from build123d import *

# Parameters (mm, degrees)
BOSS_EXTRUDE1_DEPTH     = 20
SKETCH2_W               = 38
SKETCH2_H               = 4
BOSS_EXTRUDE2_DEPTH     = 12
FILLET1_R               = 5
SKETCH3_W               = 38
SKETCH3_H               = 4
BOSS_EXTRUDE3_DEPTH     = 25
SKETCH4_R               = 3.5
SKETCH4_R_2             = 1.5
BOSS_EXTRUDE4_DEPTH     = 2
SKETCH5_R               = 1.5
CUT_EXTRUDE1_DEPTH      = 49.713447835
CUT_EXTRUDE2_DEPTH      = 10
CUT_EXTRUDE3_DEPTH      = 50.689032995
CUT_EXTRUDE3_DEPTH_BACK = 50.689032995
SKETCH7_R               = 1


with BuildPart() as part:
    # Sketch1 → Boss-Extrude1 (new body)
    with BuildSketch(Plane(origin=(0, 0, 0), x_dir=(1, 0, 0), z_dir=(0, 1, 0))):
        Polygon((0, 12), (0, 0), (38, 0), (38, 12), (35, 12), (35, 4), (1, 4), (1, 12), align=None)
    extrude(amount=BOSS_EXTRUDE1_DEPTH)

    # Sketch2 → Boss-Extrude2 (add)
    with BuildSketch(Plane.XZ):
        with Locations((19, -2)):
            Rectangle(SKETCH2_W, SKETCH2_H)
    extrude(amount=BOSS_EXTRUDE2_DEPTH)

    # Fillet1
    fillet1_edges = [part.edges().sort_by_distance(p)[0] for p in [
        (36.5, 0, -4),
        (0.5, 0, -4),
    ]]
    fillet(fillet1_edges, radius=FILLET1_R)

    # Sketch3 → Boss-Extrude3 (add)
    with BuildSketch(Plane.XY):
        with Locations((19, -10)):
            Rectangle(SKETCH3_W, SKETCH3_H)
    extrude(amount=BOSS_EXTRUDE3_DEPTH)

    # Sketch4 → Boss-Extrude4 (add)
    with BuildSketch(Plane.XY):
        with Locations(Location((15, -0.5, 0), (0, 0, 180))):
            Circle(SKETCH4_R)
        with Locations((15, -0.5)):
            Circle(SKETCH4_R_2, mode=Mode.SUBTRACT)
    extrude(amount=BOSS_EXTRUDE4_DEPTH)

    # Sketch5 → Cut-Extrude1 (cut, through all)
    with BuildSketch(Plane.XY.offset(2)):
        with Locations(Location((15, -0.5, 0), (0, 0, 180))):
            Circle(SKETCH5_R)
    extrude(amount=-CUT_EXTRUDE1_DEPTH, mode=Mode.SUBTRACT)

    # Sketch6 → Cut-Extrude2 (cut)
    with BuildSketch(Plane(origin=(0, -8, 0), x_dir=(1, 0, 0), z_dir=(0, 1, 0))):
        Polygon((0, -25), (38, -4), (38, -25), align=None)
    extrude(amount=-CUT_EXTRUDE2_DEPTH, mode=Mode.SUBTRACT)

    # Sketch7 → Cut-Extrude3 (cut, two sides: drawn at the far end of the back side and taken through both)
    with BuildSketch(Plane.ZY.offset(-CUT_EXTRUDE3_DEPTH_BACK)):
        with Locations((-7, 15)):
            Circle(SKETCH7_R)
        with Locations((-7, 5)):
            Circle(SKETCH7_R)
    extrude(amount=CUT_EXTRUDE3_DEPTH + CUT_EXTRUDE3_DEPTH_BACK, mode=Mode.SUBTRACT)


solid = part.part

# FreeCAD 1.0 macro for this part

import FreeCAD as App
import Part
import Sketcher
from FreeCAD import Vector


def edges_at(feature, points):
    """Names of the edges that pass closest to the given points."""
    edges = feature.Shape.Edges
    near = lambda p: min(range(len(edges)), key=lambda i: edges[i].distToShape(Part.Vertex(*p))[0])
    return sorted({f"Edge{near(p) + 1}" for p in points})


def add_polygon(sketch, points):
    """Adds a closed chain of lines whose ends are joined by coincident constraints."""
    first, n = sketch.GeometryCount, len(points)
    for a, b in zip(points, points[1:] + points[:1]):
        sketch.addGeometry(Part.LineSegment(App.Vector(*a, 0), App.Vector(*b, 0)), False)
    for i in range(n):
        sketch.addConstraint(Sketcher.Constraint("Coincident", first + i, 2, first + (i + 1) % n, 1))

doc = App.newDocument("Part")
body = doc.addObject("PartDesign::Body", "Body")

sketch1 = body.newObject("Sketcher::SketchObject", "Sketch")
sketch1.AttachmentSupport = (doc.getObject("XZ_Plane"), [""])
sketch1.MapMode = "FlatFace"
add_polygon(sketch1, [(0, -12), (0, 0), (38, 0), (38, -12), (35, -12), (35, -4), (1, -4), (1, -12)])
sketch1.addConstraint(Sketcher.Constraint("Vertical", 0))
sketch1.addConstraint(Sketcher.Constraint("Horizontal", 1))
sketch1.addConstraint(Sketcher.Constraint("Vertical", 2))
sketch1.addConstraint(Sketcher.Constraint("Horizontal", 3))
sketch1.addConstraint(Sketcher.Constraint("Vertical", 4))
sketch1.addConstraint(Sketcher.Constraint("Horizontal", 5))
sketch1.addConstraint(Sketcher.Constraint("Vertical", 6))
sketch1.addConstraint(Sketcher.Constraint("Horizontal", 7))
sketch1.addConstraint(Sketcher.Constraint("Coincident", 0, 2, -1, 1))
sketch1.addConstraint(Sketcher.Constraint("Horizontal", 3, 2, 6, 2))
sketch1.addConstraint(Sketcher.Constraint("DistanceX", 1, 1, 1, 2, 38.0))
sketch1.addConstraint(Sketcher.Constraint("DistanceX", 3, 2, 3, 1, 3.0))
sketch1.addConstraint(Sketcher.Constraint("DistanceX", 5, 2, 5, 1, 34.0))
sketch1.addConstraint(Sketcher.Constraint("DistanceY", 0, 1, 0, 2, 12.0))
sketch1.addConstraint(Sketcher.Constraint("DistanceY", 4, 1, 4, 2, 8.0))
pad1 = body.newObject("PartDesign::Pad", "Pad")
pad1.Profile = sketch1
pad1.Length = 20
pad1.Reversed = True

sketch2 = body.newObject("Sketcher::SketchObject", "Sketch001")
sketch2.AttachmentSupport = (doc.getObject("XZ_Plane"), [""])
sketch2.MapMode = "FlatFace"
add_polygon(sketch2, [(0, 0), (0, -4), (38, -4), (38, 0)])
sketch2.addConstraint(Sketcher.Constraint("Vertical", 0))
sketch2.addConstraint(Sketcher.Constraint("Horizontal", 1))
sketch2.addConstraint(Sketcher.Constraint("Vertical", 2))
sketch2.addConstraint(Sketcher.Constraint("Horizontal", 3))
sketch2.addConstraint(Sketcher.Constraint("Coincident", 3, 2, -1, 1))
sketch2.addConstraint(Sketcher.Constraint("DistanceX", 1, 1, 1, 2, 38.0))
sketch2.addConstraint(Sketcher.Constraint("DistanceY", 0, 2, 0, 1, 4.0))
pad2 = body.newObject("PartDesign::Pad", "Pad001")
pad2.Profile = sketch2
pad2.Length = 12
doc.recompute()

fillet = body.newObject("PartDesign::Fillet", "Fillet")
fillet.Base = (pad2, edges_at(pad2, [(36.5, 0, -4), (0.5, 0, -4)]))
fillet.Radius = 5

sketch3 = body.newObject("Sketcher::SketchObject", "Sketch002")
sketch3.AttachmentSupport = (doc.getObject("XY_Plane"), [""])
sketch3.MapMode = "FlatFace"
add_polygon(sketch3, [(0, -8), (0, -12), (38, -12), (38, -8)])
sketch3.addConstraint(Sketcher.Constraint("Vertical", 0))
sketch3.addConstraint(Sketcher.Constraint("Horizontal", 1))
sketch3.addConstraint(Sketcher.Constraint("Vertical", 2))
sketch3.addConstraint(Sketcher.Constraint("Horizontal", 3))
sketch3.addConstraint(Sketcher.Constraint("PointOnObject", 0, 2, -2))
sketch3.addConstraint(Sketcher.Constraint("DistanceX", 1, 1, 1, 2, 38.0))
sketch3.addConstraint(Sketcher.Constraint("DistanceY", 0, 2, 0, 1, 4.0))
sketch3.addConstraint(Sketcher.Constraint("DistanceY", 0, 2, -1, 1, 12.0))
pad3 = body.newObject("PartDesign::Pad", "Pad002")
pad3.Profile = sketch3
pad3.Length = 25

sketch4 = body.newObject("Sketcher::SketchObject", "Sketch003")
sketch4.AttachmentSupport = (doc.getObject("XY_Plane"), [""])
sketch4.MapMode = "FlatFace"
sketch4.addGeometry(Part.Circle(Vector(15, -0.5, 0), Vector(0, 0, 1), 3.5), False)
sketch4.addGeometry(Part.Circle(Vector(15, -0.5, 0), Vector(0, 0, 1), 1.5), False)
sketch4.addConstraint(Sketcher.Constraint("Coincident", 1, 3, 0, 3))
sketch4.addConstraint(Sketcher.Constraint("Diameter", 0, 7.0))
sketch4.addConstraint(Sketcher.Constraint("Diameter", 1, 3.0))
sketch4.addConstraint(Sketcher.Constraint("DistanceX", -1, 1, 0, 3, 15.0))
sketch4.addConstraint(Sketcher.Constraint("DistanceY", 0, 3, -1, 1, 0.5))
pad4 = body.newObject("PartDesign::Pad", "Pad003")
pad4.Profile = sketch4
pad4.Length = 2

sketch5 = body.newObject("Sketcher::SketchObject", "Sketch004")
sketch5.AttachmentSupport = (doc.getObject("XY_Plane"), [""])
sketch5.MapMode = "FlatFace"
sketch5.AttachmentOffset = App.Placement(Vector(0, 0, 2), App.Rotation())
sketch5.addGeometry(Part.Circle(Vector(15, -0.5, 0), Vector(0, 0, 1), 1.5), False)
sketch5.addConstraint(Sketcher.Constraint("Diameter", 0, 3.0))
sketch5.addConstraint(Sketcher.Constraint("DistanceX", -1, 1, 0, 3, 15.0))
sketch5.addConstraint(Sketcher.Constraint("DistanceY", 0, 3, -1, 1, 0.5))
pocket1 = body.newObject("PartDesign::Pocket", "Pocket")
pocket1.Profile = sketch5
pocket1.Type = "ThroughAll"

sketch6 = body.newObject("Sketcher::SketchObject", "Sketch005")
sketch6.AttachmentSupport = (doc.getObject("XZ_Plane"), [""])
sketch6.MapMode = "FlatFace"
sketch6.AttachmentOffset = App.Placement(Vector(0, 0, 8), App.Rotation())
add_polygon(sketch6, [(38, 4), (0, 25), (38, 25)])
sketch6.addConstraint(Sketcher.Constraint("Horizontal", 1))
sketch6.addConstraint(Sketcher.Constraint("Vertical", 2))
sketch6.addConstraint(Sketcher.Constraint("PointOnObject", 0, 2, -2))
sketch6.addConstraint(Sketcher.Constraint("DistanceX", 1, 1, 1, 2, 38.0))
sketch6.addConstraint(Sketcher.Constraint("DistanceY", 2, 2, 2, 1, 21.0))
sketch6.addConstraint(Sketcher.Constraint("DistanceY", -1, 1, 0, 2, 25.0))
pocket2 = body.newObject("PartDesign::Pocket", "Pocket001")
pocket2.Profile = sketch6
pocket2.Length = 10
pocket2.Reversed = True

sketch7 = body.newObject("Sketcher::SketchObject", "Sketch006")
sketch7.AttachmentSupport = (doc.getObject("YZ_Plane"), [""])
sketch7.MapMode = "FlatFace"
sketch7.addGeometry(Part.Circle(Vector(15, -7, 0), Vector(0, 0, 1), 1), False)
sketch7.addGeometry(Part.Circle(Vector(5, -7, 0), Vector(0, 0, 1), 1), False)
sketch7.addConstraint(Sketcher.Constraint("Equal", 0, 1))
sketch7.addConstraint(Sketcher.Constraint("Horizontal", 0, 3, 1, 3))
sketch7.addConstraint(Sketcher.Constraint("Diameter", 0, 2.0))
sketch7.addConstraint(Sketcher.Constraint("DistanceX", -1, 1, 0, 3, 15.0))
sketch7.addConstraint(Sketcher.Constraint("DistanceY", 0, 3, -1, 1, 7.0))
sketch7.addConstraint(Sketcher.Constraint("DistanceX", -1, 1, 1, 3, 5.0))
pocket3 = body.newObject("PartDesign::Pocket", "Pocket002")
pocket3.Profile = sketch7
pocket3.Type = "ThroughAll"
pocket3.Midplane = True

doc.recompute()
